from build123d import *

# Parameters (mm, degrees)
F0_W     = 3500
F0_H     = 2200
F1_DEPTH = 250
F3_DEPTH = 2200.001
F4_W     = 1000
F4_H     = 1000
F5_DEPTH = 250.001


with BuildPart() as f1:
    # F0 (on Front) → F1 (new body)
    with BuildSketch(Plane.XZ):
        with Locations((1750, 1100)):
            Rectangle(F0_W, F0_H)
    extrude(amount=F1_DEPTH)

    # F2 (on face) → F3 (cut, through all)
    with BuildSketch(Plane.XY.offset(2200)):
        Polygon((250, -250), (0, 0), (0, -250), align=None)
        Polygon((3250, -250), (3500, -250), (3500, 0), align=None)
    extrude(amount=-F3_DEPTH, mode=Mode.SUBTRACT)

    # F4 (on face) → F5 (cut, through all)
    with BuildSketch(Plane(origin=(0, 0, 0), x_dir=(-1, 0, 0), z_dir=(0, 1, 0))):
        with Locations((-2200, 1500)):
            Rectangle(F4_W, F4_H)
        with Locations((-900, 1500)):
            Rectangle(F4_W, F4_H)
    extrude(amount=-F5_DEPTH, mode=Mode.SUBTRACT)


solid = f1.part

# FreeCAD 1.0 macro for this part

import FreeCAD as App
import Part
import Sketcher

V = App.Vector


def add_polygon(sketch, points):
    """Adds a closed chain of lines whose ends are joined by coincident constraints."""
    first, n = sketch.GeometryCount, len(points)
    for a, b in zip(points, points[1:] + points[:1]):
        sketch.addGeometry(Part.LineSegment(App.Vector(*a, 0), App.Vector(*b, 0)), False)
    for i in range(n):
        sketch.addConstraint(Sketcher.Constraint("Coincident", first + i, 2, first + (i + 1) % n, 1))

doc = App.newDocument("Part")
body = doc.addObject("PartDesign::Body", "Body")

# Sketch on XZ plane
sketch1 = body.newObject("Sketcher::SketchObject", "Sketch")
sketch1.AttachmentSupport = (doc.getObject("XZ_Plane"), [""])
sketch1.MapMode = "FlatFace"
add_polygon(sketch1, [(0, 2200), (0, 0), (3500, 0), (3500, 2200)])  # lines 0-3
sketch1.addConstraint(Sketcher.Constraint("Vertical", 0))
sketch1.addConstraint(Sketcher.Constraint("Horizontal", 1))
sketch1.addConstraint(Sketcher.Constraint("Vertical", 2))
sketch1.addConstraint(Sketcher.Constraint("Horizontal", 3))
sketch1.addConstraint(Sketcher.Constraint("Coincident", 0, 2, -1, 1))
sketch1.addConstraint(Sketcher.Constraint("DistanceX", 1, 1, 1, 2, 3500.0))
sketch1.addConstraint(Sketcher.Constraint("DistanceY", 0, 2, 0, 1, 2200.0))
pad1 = body.newObject("PartDesign::Pad", "Pad")
pad1.Profile = sketch1
pad1.Length = 250

# Sketch on XY plane
sketch2 = body.newObject("Sketcher::SketchObject", "Sketch001")
sketch2.AttachmentSupport = (doc.getObject("XY_Plane"), [""])
sketch2.MapMode = "FlatFace"
sketch2.AttachmentOffset = App.Placement(V(0, 0, 2200), App.Rotation())
add_polygon(sketch2, [(250, -250), (0, 0), (0, -250)])  # lines 0-2
add_polygon(sketch2, [(3250, -250), (3500, -250), (3500, 0)])  # lines 3-5
sketch2.addConstraint(Sketcher.Constraint("Vertical", 1))
sketch2.addConstraint(Sketcher.Constraint("Horizontal", 2))
sketch2.addConstraint(Sketcher.Constraint("Horizontal", 3))
sketch2.addConstraint(Sketcher.Constraint("Vertical", 4))
sketch2.addConstraint(Sketcher.Constraint("Coincident", 0, 2, -1, 1))
sketch2.addConstraint(Sketcher.Constraint("PointOnObject", 4, 2, -1))
sketch2.addConstraint(Sketcher.Constraint("Perpendicular", 0, 5))
sketch2.addConstraint(Sketcher.Constraint("Horizontal", 2, 2, 3, 2))
sketch2.addConstraint(Sketcher.Constraint("Equal", 2, 3))
sketch2.addConstraint(Sketcher.Constraint("DistanceX", 2, 1, 2, 2, 250.0))
sketch2.addConstraint(Sketcher.Constraint("DistanceX", -1, 1, 3, 2, 3500.0))
pocket1 = body.newObject("PartDesign::Pocket", "Pocket")
pocket1.Profile = sketch2
pocket1.Type = "ThroughAll"

# Sketch on XZ plane
sketch3 = body.newObject("Sketcher::SketchObject", "Sketch002")
sketch3.AttachmentSupport = (doc.getObject("XZ_Plane"), [""])
sketch3.MapMode = "FlatFace"
add_polygon(sketch3, [(2700, 2000), (2700, 1000), (1700, 1000), (1700, 2000)])  # lines 0-3
add_polygon(sketch3, [(1400, 2000), (1400, 1000), (400, 1000), (400, 2000)])  # lines 4-7
sketch3.addConstraint(Sketcher.Constraint("Vertical", 0))
sketch3.addConstraint(Sketcher.Constraint("Horizontal", 1))
sketch3.addConstraint(Sketcher.Constraint("Vertical", 2))
sketch3.addConstraint(Sketcher.Constraint("Horizontal", 3))
sketch3.addConstraint(Sketcher.Constraint("Vertical", 4))
sketch3.addConstraint(Sketcher.Constraint("Horizontal", 5))
sketch3.addConstraint(Sketcher.Constraint("Vertical", 6))
sketch3.addConstraint(Sketcher.Constraint("Horizontal", 7))
sketch3.addConstraint(Sketcher.Constraint("Horizontal", 1, 2, 4, 2))
sketch3.addConstraint(Sketcher.Constraint("Horizontal", 3, 2, 6, 2))
sketch3.addConstraint(Sketcher.Constraint("Equal", 3, 5))
sketch3.addConstraint(Sketcher.Constraint("Equal", 7, 0))
sketch3.addConstraint(Sketcher.Constraint("DistanceX", 1, 2, 1, 1, 1000.0))
sketch3.addConstraint(Sketcher.Constraint("DistanceX", -1, 1, 0, 2, 2700.0))
sketch3.addConstraint(Sketcher.Constraint("DistanceY", -1, 1, 0, 2, 1000.0))
sketch3.addConstraint(Sketcher.Constraint("DistanceX", -1, 1, 4, 2, 1400.0))
pocket2 = body.newObject("PartDesign::Pocket", "Pocket001")
pocket2.Profile = sketch3
pocket2.Type = "ThroughAll"
pocket2.Reversed = True

doc.recompute()
